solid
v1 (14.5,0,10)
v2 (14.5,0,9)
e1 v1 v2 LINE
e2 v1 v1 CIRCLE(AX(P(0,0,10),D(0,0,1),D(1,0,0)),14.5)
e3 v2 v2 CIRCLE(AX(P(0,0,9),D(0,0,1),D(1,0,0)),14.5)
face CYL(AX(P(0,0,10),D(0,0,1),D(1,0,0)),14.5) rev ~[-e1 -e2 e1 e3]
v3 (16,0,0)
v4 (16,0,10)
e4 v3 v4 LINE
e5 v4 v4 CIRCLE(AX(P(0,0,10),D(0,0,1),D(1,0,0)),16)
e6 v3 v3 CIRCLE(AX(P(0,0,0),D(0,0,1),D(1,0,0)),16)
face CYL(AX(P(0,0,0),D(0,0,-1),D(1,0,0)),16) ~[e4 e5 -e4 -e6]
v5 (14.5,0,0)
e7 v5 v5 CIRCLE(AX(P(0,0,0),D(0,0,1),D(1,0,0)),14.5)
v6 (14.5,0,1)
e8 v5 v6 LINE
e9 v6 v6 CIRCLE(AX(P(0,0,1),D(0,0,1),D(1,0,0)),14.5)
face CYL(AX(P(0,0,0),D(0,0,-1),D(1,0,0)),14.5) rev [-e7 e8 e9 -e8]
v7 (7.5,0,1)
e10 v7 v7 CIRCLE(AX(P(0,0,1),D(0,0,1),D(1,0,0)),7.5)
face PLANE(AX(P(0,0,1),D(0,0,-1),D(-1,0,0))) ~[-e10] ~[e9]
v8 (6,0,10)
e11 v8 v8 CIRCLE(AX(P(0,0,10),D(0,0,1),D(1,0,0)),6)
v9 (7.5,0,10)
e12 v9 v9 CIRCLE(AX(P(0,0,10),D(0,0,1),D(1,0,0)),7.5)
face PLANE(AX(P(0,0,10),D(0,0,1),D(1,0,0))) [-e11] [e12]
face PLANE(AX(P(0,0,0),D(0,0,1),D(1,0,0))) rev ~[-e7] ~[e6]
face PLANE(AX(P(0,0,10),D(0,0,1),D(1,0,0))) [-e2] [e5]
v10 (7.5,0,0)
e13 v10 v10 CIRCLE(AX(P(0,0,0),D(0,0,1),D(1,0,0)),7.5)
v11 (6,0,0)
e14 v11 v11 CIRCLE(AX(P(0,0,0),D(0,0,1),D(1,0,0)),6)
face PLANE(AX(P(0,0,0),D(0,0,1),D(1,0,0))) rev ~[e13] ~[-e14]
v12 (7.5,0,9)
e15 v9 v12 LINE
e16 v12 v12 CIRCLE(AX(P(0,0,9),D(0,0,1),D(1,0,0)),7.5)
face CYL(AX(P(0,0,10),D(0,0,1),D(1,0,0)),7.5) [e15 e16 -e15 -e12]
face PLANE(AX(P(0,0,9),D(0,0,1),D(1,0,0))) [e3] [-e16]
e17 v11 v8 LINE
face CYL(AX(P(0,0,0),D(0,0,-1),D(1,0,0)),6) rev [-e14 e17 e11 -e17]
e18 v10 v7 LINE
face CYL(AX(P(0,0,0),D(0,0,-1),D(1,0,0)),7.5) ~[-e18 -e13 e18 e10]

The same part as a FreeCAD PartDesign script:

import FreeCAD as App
import Part
import Sketcher

doc = App.newDocument("Part")
body = doc.addObject("PartDesign::Body", "Body")

# Sketch on XY plane
sketch1 = body.newObject("Sketcher::SketchObject", "Sketch")
sketch1.AttachmentSupport = (doc.getObject("XY_Plane"), [""])
sketch1.MapMode = "FlatFace"
sketch1.addGeometry([
    Part.Circle(App.Vector(0, 0, 0), App.Vector(0, 0, 1), 16),
    Part.Circle(App.Vector(0, 0, 0), App.Vector(0, 0, 1), 6),
], False)
sketch1.addConstraint([
    Sketcher.Constraint("Coincident", 0, 3, -1, 1),
    Sketcher.Constraint("Coincident", 1, 3, -1, 1),
    Sketcher.Constraint("Diameter", 0, 32.0),
    Sketcher.Constraint("Diameter", 1, 12.0),
])
pad1 = body.newObject("PartDesign::Pad", "Pad")
pad1.Profile = sketch1
pad1.Length = 10

# Sketch on XY plane
sketch2 = body.newObject("Sketcher::SketchObject", "Sketch001")
sketch2.AttachmentSupport = (doc.getObject("XY_Plane"), [""])
sketch2.MapMode = "FlatFace"
sketch2.AttachmentOffset = App.Placement(App.Vector(0, 0, 10), App.Rotation())
sketch2.addGeometry([
    Part.Circle(App.Vector(0, 0, 0), App.Vector(0, 0, 1), 14),
    Part.Circle(App.Vector(0, 0, 0), App.Vector(0, 0, 1), 8),
], False)
sketch2.addConstraint([
    Sketcher.Constraint("Coincident", 0, 3, -1, 1),
    Sketcher.Constraint("Coincident", 1, 3, -1, 1),
    Sketcher.Constraint("Diameter", 0, 29.0),
    Sketcher.Constraint("Diameter", 1, 15.0),
])
pocket1 = body.newObject("PartDesign::Pocket", "Pocket")
pocket1.Profile = sketch2
pocket1.Length = 1
doc.recompute()

datumplane = body.newObject("PartDesign::Plane", "DatumPlane")
datumplane.AttachmentSupport = (doc.getObject("XY_Plane"), [""])
datumplane.MapMode = "FlatFace"
datumplane.AttachmentOffset = App.Placement(App.Vector(0, 0, 5), App.Rotation())
mirrored = body.newObject("PartDesign::Mirrored", "Mirrored")
mirrored.Originals = [pocket1]
mirrored.MirrorPlane = (datumplane, [""])
body.Tip = mirrored

doc.recompute()
